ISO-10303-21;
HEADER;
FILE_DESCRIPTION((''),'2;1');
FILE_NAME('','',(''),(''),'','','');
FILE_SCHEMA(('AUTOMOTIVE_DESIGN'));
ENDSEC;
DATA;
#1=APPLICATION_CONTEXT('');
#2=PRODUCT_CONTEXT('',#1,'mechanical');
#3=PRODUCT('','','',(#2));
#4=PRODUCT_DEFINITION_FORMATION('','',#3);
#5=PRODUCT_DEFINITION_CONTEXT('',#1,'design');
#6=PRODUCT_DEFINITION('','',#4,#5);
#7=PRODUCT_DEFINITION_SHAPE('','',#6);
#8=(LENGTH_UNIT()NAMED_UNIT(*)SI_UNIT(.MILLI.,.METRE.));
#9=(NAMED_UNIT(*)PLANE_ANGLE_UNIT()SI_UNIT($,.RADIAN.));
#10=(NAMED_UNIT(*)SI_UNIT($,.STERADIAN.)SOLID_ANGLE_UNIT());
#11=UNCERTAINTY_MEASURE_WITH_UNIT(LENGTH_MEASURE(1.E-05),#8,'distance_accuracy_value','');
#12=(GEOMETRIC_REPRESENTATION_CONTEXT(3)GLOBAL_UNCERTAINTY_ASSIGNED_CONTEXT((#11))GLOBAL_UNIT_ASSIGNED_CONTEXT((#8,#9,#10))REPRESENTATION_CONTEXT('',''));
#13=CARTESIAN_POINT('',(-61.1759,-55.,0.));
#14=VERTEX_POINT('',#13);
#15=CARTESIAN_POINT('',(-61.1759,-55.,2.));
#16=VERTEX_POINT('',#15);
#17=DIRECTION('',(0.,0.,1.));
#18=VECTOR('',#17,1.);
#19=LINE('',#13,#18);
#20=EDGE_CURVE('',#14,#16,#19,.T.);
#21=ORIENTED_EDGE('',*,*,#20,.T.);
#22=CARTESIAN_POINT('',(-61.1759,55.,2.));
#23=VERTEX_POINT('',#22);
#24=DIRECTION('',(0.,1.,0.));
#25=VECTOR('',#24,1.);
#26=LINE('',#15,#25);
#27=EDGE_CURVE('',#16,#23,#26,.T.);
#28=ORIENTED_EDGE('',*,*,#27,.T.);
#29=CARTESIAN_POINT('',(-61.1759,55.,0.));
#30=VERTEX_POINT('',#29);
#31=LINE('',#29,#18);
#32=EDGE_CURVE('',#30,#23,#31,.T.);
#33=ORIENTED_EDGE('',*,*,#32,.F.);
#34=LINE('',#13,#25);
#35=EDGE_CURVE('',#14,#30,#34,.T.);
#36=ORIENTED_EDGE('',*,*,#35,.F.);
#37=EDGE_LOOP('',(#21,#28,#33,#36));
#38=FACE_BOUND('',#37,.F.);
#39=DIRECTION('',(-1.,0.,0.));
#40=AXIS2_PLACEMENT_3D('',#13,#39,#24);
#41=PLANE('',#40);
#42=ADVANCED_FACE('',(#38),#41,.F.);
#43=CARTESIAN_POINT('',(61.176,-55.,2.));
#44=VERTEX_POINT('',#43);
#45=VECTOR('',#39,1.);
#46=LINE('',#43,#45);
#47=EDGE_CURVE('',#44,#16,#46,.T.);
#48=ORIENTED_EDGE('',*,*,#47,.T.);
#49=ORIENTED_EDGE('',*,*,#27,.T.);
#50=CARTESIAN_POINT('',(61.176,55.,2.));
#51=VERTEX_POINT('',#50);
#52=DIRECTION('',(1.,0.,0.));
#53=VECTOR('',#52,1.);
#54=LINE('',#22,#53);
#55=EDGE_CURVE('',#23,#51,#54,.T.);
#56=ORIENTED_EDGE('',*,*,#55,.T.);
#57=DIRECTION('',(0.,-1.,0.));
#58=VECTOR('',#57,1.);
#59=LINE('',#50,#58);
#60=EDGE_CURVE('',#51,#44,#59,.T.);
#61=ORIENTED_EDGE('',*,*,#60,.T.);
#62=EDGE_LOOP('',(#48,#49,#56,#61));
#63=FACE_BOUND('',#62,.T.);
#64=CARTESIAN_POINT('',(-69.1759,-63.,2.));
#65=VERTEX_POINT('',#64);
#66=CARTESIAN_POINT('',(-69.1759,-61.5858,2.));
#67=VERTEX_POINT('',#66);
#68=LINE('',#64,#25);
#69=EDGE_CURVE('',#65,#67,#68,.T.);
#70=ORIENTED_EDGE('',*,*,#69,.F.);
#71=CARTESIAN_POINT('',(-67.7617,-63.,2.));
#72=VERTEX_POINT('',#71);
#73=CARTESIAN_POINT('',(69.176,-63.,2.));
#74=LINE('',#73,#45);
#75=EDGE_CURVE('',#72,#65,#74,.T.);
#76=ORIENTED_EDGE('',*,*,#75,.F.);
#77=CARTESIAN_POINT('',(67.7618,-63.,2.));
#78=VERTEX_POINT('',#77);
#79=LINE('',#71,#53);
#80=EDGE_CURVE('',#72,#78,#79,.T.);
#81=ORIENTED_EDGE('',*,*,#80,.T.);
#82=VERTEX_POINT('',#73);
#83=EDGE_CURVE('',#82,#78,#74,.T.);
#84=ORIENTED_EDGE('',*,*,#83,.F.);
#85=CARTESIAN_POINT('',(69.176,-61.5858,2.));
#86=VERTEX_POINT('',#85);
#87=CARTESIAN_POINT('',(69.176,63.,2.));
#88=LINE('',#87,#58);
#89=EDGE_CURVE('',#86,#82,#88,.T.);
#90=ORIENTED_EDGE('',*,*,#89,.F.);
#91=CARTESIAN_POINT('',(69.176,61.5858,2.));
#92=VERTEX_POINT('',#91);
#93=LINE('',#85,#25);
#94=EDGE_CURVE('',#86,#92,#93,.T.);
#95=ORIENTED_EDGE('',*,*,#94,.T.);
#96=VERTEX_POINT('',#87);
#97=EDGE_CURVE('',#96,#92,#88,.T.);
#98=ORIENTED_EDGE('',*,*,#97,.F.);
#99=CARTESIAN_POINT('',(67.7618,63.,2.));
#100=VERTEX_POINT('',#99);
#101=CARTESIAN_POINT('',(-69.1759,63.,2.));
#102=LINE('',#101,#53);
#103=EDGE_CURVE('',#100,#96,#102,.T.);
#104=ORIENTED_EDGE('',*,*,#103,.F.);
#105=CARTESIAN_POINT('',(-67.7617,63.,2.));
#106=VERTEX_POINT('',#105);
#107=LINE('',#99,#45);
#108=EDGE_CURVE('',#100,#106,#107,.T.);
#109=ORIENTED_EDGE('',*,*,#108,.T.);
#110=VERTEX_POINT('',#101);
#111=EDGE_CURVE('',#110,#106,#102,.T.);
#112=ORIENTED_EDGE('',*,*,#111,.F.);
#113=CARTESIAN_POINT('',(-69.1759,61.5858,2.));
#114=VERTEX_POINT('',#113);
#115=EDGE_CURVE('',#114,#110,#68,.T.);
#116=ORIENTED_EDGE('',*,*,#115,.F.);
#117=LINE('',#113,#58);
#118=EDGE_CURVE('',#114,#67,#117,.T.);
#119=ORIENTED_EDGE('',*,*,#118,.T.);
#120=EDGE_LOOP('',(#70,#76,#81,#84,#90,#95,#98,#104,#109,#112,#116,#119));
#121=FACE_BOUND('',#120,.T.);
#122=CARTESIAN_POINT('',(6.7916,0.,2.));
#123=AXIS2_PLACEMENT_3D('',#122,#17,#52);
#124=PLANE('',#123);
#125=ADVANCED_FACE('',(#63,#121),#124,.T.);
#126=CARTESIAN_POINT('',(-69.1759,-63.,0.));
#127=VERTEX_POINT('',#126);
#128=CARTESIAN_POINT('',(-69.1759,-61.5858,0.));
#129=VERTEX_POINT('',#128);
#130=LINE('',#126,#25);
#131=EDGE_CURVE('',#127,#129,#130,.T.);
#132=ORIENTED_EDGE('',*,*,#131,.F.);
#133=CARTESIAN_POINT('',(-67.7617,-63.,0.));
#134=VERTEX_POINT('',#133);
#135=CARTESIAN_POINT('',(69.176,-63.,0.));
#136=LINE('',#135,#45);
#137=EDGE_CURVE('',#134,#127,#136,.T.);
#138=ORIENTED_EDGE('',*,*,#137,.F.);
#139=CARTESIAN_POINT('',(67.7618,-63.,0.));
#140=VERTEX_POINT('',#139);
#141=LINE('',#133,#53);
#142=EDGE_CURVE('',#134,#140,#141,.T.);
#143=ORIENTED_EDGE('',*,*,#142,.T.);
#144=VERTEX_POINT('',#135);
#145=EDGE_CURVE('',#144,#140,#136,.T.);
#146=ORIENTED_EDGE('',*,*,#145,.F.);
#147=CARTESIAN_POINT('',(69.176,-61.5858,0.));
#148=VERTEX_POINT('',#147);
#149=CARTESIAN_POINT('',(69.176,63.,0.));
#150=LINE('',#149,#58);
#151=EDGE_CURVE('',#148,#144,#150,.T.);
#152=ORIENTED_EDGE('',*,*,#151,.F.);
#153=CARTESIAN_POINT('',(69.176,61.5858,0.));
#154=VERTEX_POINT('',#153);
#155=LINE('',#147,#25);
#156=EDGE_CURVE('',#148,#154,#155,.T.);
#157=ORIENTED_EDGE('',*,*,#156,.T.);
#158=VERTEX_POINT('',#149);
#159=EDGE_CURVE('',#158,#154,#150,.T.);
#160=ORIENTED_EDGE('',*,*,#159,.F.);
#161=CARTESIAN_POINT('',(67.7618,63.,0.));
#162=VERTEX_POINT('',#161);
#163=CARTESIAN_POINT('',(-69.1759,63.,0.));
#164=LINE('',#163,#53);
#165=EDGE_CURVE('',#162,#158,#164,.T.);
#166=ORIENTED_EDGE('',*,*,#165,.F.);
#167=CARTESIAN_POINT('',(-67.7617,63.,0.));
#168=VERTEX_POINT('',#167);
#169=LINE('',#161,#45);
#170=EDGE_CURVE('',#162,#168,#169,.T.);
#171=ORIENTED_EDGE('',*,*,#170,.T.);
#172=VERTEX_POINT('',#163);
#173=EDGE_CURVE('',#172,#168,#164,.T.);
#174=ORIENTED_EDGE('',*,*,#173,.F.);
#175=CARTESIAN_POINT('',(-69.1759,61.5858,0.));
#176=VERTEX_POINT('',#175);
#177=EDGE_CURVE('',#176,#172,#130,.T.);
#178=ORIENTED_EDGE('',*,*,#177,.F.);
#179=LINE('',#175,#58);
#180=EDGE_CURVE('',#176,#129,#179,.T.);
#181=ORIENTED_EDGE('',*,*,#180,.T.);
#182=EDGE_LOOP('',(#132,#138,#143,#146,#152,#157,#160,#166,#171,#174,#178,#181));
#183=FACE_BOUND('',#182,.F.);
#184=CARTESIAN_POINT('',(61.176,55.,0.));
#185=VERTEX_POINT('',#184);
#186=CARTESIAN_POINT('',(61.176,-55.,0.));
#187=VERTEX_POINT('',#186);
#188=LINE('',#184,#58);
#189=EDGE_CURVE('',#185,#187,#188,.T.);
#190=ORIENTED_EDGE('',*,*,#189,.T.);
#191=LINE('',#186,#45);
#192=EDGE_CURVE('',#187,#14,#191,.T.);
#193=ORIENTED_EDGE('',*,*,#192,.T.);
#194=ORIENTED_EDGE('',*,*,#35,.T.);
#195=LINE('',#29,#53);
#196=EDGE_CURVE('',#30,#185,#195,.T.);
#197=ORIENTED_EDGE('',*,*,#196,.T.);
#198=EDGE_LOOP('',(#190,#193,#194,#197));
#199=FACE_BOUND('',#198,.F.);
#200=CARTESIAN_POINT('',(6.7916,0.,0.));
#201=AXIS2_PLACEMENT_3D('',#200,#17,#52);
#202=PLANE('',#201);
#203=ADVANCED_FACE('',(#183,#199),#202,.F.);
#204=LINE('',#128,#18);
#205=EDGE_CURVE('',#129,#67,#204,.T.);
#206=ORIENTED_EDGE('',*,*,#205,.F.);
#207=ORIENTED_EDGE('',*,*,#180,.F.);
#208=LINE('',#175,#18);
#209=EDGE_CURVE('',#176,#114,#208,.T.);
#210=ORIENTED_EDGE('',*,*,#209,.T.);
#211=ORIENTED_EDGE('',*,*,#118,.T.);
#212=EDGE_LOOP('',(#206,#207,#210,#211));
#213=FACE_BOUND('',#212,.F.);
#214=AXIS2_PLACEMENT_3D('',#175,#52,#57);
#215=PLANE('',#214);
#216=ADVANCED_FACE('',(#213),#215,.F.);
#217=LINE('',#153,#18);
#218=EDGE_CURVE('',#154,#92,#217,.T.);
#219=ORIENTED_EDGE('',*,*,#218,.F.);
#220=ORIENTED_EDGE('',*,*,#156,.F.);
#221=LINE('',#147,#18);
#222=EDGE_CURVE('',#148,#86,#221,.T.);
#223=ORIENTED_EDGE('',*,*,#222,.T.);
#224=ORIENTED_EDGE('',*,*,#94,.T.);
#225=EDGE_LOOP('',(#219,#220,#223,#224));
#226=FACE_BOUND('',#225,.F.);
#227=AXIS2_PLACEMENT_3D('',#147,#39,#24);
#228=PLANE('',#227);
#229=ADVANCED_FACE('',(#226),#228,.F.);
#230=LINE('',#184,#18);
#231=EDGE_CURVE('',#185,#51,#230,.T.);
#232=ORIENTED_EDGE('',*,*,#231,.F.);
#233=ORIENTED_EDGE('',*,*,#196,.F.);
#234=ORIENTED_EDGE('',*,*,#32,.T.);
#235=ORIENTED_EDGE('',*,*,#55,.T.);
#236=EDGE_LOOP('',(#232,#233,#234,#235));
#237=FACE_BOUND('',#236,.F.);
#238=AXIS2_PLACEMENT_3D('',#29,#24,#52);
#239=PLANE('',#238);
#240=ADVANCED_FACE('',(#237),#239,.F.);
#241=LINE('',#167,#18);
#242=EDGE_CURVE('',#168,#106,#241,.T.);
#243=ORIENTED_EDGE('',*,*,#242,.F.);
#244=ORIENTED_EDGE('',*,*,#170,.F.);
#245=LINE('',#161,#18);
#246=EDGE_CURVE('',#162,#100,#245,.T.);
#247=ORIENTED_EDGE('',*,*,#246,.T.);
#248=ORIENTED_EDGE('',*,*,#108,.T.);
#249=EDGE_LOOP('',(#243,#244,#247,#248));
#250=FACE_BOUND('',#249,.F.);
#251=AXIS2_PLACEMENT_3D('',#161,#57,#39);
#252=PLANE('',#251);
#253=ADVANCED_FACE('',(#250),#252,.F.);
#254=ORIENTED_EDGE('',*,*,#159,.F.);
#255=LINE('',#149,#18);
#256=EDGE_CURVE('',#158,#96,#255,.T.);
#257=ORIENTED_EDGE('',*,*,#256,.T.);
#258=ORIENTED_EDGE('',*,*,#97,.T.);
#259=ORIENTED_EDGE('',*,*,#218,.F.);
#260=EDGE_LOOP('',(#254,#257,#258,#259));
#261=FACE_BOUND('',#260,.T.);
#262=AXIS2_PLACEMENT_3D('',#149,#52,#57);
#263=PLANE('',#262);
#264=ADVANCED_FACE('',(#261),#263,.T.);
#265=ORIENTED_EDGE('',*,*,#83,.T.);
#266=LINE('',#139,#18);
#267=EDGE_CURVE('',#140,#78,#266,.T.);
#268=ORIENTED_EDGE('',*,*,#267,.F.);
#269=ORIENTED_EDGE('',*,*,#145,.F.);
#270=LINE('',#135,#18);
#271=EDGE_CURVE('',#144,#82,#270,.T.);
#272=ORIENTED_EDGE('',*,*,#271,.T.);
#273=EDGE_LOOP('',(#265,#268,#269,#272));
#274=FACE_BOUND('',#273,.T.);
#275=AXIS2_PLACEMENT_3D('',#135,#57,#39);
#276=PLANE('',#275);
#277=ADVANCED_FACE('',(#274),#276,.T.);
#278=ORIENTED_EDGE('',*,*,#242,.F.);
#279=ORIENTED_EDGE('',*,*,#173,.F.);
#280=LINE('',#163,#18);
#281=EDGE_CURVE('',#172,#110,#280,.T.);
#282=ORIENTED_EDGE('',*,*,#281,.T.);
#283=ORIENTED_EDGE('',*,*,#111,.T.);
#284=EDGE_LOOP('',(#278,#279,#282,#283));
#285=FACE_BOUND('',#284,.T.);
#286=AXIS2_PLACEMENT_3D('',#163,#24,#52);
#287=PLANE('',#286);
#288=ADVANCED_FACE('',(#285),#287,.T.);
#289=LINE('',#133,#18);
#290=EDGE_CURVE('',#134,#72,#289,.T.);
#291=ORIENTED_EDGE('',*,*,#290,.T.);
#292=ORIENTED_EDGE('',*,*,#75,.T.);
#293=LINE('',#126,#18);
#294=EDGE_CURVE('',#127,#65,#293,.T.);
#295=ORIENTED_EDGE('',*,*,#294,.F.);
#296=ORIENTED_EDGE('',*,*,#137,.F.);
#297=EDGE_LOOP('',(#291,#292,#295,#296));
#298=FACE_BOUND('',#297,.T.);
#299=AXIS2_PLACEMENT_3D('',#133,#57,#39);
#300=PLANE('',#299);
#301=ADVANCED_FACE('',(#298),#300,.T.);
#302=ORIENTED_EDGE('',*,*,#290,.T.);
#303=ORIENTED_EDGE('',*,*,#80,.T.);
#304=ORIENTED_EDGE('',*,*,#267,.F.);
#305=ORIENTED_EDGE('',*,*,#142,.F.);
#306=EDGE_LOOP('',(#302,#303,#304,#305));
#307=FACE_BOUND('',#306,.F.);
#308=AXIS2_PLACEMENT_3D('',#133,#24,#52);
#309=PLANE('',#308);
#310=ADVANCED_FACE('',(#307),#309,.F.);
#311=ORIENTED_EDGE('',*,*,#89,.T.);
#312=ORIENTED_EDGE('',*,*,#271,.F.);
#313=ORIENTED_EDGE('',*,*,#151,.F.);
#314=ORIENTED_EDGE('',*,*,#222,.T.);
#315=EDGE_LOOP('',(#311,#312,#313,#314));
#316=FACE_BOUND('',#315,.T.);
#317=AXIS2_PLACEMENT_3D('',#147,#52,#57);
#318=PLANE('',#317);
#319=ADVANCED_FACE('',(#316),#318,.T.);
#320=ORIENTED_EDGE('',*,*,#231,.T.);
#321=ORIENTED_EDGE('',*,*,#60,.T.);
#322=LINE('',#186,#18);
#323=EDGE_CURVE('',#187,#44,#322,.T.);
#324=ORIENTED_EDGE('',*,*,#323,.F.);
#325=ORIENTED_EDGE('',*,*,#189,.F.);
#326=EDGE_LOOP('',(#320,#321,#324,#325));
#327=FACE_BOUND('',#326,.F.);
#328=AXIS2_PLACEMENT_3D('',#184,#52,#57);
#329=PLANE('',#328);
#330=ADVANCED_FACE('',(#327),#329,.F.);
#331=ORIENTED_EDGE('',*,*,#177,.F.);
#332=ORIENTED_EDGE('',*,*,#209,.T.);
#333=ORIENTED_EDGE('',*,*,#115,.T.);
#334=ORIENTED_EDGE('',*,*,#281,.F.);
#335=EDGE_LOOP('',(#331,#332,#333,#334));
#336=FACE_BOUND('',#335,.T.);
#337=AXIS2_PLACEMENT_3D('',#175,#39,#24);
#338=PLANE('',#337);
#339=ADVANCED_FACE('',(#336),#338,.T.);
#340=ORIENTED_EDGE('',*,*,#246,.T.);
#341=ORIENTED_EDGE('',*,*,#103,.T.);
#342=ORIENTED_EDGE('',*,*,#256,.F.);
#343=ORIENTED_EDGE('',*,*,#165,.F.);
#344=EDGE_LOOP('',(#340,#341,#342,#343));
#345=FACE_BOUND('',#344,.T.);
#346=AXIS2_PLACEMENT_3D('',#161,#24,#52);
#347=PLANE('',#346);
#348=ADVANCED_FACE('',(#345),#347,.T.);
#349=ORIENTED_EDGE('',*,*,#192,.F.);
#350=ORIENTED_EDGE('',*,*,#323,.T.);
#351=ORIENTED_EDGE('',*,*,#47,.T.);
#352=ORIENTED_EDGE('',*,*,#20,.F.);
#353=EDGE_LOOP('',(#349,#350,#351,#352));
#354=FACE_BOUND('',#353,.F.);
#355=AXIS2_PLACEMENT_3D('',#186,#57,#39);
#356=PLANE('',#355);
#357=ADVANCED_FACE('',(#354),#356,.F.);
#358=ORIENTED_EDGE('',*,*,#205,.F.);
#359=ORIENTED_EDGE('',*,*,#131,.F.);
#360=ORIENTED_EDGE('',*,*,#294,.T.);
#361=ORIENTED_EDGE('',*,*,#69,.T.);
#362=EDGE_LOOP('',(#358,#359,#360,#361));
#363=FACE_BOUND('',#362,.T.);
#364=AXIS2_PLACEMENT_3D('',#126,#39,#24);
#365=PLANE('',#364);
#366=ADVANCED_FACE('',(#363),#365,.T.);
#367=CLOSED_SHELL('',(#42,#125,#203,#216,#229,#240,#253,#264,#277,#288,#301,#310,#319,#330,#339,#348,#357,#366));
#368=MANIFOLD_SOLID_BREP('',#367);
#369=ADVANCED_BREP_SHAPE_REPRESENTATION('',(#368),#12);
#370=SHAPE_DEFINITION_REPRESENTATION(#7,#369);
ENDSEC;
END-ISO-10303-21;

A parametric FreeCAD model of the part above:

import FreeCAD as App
import Part
import Sketcher

V = App.Vector
Q = App.Units.Quantity


def add_polygon(sketch, points):
    """Adds a closed chain of lines whose ends are joined by coincident constraints."""
    first, n = sketch.GeometryCount, len(points)
    for a, b in zip(points, points[1:] + points[:1]):
        sketch.addGeometry(Part.LineSegment(App.Vector(*a, 0), App.Vector(*b, 0)), False)
    for i in range(n):
        sketch.addConstraint(Sketcher.Constraint("Coincident", first + i, 2, first + (i + 1) % n, 1))

doc = App.newDocument("Part")
body = doc.addObject("PartDesign::Body", "Body")

sketch1 = doc.addObject("Sketcher::SketchObject", "Sketch")
body.addObject(sketch1)
sketch1.AttachmentSupport = (doc.XY_Plane, [""])
sketch1.MapMode = "FlatFace"
add_polygon(sketch1, [(-69, -63), (69, -63), (69, 63), (-69, 63)])
add_polygon(sketch1, [(61, 55), (61, -55), (-61, -55), (-61, 55)])
sketch1.addConstraint(Sketcher.Constraint("Horizontal", 0))
sketch1.addConstraint(Sketcher.Constraint("Vertical", 1))
sketch1.addConstraint(Sketcher.Constraint("Horizontal", 2))
sketch1.addConstraint(Sketcher.Constraint("Vertical", 3))
sketch1.addConstraint(Sketcher.Constraint("Vertical", 4))
sketch1.addConstraint(Sketcher.Constraint("Horizontal", 5))
sketch1.addConstraint(Sketcher.Constraint("Vertical", 6))
sketch1.addConstraint(Sketcher.Constraint("Horizontal", 7))
sketch1.addConstraint(Sketcher.Constraint("Symmetric", 0, 2, 2, 2, -1, 1))
sketch1.addConstraint(Sketcher.Constraint("Symmetric", 4, 2, 6, 2, -1, 1))
sketch1.addConstraint(Sketcher.Constraint("DistanceX", 4, 2, 0, 2, Q("8 mm")))
sketch1.addConstraint(Sketcher.Constraint("DistanceY", 0, 2, 4, 2, Q("8 mm")))
sketch1.addConstraint(Sketcher.Constraint("DistanceY", 1, 1, 1, 2, Q("126 mm")))
sketch1.addConstraint(Sketcher.Constraint("DistanceX", 0, 1, 0, 2, Q("138.352 mm")))
pad1 = doc.addObject("PartDesign::Pad", "Pad")
body.addObject(pad1)
pad1.Profile = sketch1
pad1.Length = 2

doc.recompute()
